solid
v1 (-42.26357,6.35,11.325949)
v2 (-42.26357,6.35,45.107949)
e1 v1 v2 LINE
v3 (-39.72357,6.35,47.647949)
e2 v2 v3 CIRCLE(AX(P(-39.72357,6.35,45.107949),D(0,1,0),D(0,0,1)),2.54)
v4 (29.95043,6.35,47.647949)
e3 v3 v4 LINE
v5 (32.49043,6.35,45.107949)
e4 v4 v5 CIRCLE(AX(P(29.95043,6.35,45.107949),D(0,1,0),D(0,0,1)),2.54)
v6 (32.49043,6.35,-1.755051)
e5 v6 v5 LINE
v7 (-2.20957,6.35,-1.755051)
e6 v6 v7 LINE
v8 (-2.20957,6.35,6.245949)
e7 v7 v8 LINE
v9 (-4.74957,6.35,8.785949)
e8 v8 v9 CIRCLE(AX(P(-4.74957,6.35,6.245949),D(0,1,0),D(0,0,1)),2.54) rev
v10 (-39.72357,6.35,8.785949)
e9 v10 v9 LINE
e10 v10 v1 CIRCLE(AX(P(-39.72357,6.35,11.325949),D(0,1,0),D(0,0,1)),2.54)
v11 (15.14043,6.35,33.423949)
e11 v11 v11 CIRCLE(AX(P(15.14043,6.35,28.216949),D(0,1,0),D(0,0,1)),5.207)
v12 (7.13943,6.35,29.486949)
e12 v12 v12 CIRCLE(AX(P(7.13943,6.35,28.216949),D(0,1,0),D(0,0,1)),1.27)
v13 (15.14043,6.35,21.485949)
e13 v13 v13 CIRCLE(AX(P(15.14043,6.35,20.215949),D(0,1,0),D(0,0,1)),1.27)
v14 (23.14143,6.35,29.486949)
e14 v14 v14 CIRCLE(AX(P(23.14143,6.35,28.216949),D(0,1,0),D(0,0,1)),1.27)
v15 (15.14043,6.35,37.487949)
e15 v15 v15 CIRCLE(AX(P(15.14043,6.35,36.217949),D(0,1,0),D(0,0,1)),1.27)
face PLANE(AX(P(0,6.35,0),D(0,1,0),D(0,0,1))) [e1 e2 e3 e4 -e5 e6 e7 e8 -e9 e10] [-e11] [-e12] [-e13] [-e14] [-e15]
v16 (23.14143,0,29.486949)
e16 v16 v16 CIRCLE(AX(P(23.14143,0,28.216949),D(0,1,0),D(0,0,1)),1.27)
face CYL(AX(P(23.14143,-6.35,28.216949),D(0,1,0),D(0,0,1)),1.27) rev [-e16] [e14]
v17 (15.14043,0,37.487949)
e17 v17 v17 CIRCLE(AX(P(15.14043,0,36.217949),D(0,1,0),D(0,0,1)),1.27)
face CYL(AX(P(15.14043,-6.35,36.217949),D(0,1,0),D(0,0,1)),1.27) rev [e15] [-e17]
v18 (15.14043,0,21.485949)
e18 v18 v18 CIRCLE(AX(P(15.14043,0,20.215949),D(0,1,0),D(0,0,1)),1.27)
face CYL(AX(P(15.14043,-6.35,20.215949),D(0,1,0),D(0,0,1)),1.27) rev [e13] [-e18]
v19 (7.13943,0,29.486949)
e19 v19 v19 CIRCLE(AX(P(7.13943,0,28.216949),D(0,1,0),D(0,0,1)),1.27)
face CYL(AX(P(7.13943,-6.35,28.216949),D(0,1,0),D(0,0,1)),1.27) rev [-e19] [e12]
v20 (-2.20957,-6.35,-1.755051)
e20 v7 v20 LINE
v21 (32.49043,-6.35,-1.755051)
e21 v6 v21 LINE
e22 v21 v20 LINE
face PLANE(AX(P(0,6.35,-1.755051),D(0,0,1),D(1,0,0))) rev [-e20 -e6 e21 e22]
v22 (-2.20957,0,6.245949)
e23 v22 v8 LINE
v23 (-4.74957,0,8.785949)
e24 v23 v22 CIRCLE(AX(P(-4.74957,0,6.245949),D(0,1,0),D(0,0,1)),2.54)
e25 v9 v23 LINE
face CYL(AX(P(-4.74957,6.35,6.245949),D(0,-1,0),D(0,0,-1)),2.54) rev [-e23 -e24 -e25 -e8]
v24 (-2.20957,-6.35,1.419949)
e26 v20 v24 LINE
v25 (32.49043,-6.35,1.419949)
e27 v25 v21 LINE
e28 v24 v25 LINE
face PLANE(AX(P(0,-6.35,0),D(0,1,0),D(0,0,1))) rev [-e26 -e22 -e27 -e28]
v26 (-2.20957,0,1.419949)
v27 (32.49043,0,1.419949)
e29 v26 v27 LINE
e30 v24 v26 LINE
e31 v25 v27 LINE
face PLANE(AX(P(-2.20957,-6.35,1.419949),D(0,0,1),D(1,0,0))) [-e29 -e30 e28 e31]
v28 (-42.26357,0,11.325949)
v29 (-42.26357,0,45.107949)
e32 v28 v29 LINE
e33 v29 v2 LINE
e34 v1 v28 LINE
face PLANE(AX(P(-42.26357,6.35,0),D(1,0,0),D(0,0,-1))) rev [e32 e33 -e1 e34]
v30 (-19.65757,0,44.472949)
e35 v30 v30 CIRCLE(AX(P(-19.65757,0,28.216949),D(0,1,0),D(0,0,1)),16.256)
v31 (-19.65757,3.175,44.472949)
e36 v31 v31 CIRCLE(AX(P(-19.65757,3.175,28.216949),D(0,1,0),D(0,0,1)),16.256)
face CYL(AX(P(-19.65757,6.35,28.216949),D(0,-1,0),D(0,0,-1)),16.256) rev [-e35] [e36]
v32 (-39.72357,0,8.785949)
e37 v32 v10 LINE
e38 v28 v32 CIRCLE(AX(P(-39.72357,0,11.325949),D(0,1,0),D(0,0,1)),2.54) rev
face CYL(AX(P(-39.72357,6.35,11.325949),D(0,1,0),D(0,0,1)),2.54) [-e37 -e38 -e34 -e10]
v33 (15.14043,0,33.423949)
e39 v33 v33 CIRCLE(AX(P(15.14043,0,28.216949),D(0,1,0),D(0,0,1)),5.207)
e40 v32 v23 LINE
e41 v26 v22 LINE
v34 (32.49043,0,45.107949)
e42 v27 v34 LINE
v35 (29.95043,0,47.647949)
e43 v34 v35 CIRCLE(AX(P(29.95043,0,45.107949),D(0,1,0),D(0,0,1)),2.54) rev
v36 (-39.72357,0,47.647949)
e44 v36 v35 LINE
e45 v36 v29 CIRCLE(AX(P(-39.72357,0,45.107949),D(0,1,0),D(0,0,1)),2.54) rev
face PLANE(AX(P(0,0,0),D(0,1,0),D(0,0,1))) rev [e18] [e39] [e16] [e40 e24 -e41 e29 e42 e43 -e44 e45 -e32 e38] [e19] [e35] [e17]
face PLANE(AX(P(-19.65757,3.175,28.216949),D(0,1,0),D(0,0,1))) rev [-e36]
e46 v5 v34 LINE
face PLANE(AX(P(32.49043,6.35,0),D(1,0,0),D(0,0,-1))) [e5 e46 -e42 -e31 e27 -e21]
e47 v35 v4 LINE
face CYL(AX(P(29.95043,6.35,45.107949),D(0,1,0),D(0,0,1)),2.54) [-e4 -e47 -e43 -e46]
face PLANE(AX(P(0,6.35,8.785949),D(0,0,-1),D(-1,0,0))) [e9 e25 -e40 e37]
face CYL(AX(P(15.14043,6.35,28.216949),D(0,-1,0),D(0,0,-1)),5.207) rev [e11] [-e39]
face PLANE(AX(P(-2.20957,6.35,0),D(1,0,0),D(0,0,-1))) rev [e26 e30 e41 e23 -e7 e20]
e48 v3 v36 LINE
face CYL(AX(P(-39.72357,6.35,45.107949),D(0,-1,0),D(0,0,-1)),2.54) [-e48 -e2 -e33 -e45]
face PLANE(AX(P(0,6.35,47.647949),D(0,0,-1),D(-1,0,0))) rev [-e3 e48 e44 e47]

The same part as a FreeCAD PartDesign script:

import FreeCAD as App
import Part
import Sketcher
Q = App.Units.Quantity


def edges_at(feature, points):
    """Names of the edges that pass closest to the given points."""
    edges = feature.Shape.Edges
    near = lambda p: min(range(len(edges)), key=lambda i: edges[i].distToShape(Part.Vertex(*p))[0])
    return sorted({f"Edge{near(p) + 1}" for p in points})


def add_polygon(sketch, points):
    """Adds a closed chain of lines whose ends are joined by coincident constraints."""
    first, n = sketch.GeometryCount, len(points)
    for a, b in zip(points, points[1:] + points[:1]):
        sketch.addGeometry(Part.LineSegment(App.Vector(*a, 0), App.Vector(*b, 0)), False)
    for i in range(n):
        sketch.addConstraint(Sketcher.Constraint("Coincident", first + i, 2, first + (i + 1) % n, 1))

doc = App.newDocument("Part")
body = doc.addObject("PartDesign::Body", "Body")

# Sketch on XZ plane
sketch1 = doc.addObject("Sketcher::SketchObject", "Sketch")
body.addObject(sketch1)
sketch1.AttachmentSupport = (doc.XZ_Plane, [""])
sketch1.MapMode = "FlatFace"
add_polygon(sketch1, [(-42, 9), (-42, 48), (32, 48), (32, -2), (-2, -2), (-2, 9)])  # lines 0-5
sketch1.addGeometry(Part.Circle(App.Vector(-20, 28, 0), App.Vector(0, 0, 1), 16), False)  # 6
sketch1.addGeometry(Part.Circle(App.Vector(15, 28, 0), App.Vector(0, 0, 1), 5), False)  # 7
sketch1.addConstraint(Sketcher.Constraint("Vertical", 0))
sketch1.addConstraint(Sketcher.Constraint("Horizontal", 1))
sketch1.addConstraint(Sketcher.Constraint("Vertical", 2))
sketch1.addConstraint(Sketcher.Constraint("Horizontal", 3))
sketch1.addConstraint(Sketcher.Constraint("Vertical", 4))
sketch1.addConstraint(Sketcher.Constraint("Horizontal", 5))
sketch1.addConstraint(Sketcher.Constraint("Horizontal", 6, 3, 7, 3))
sketch1.addConstraint(Sketcher.Constraint("Diameter", 6, Q("1.28 in")))
sketch1.addConstraint(Sketcher.Constraint("Diameter", 7, Q("0.41 in")))
sketch1.addConstraint(Sketcher.Constraint("DistanceY", 0, 1, 0, 2, Q("1.53 in")))
sketch1.addConstraint(Sketcher.Constraint("DistanceY", 2, 2, 2, 1, Q("1.945 in")))
sketch1.addConstraint(Sketcher.Constraint("DistanceX", 6, 3, 7, 3, Q("1.37 in")))
sketch1.addConstraint(Sketcher.Constraint("DistanceX", 0, 2, 6, 3, Q("0.89 in")))
sketch1.addConstraint(Sketcher.Constraint("DistanceY", 2, 2, 7, 3, Q("1.18 in")))
sketch1.addConstraint(Sketcher.Constraint("DistanceX", 1, 1, 1, 2, Q("74.754 mm")))
sketch1.addConstraint(Sketcher.Constraint("DistanceX", 3, 2, 3, 1, Q("34.7 mm")))
sketch1.addConstraint(Sketcher.Constraint("DistanceX", 6, 3, -1, 1, Q("19.65757 mm")))
sketch1.addConstraint(Sketcher.Constraint("DistanceY", -1, 1, 6, 3, Q("28.216949 mm")))
pad1 = doc.addObject("PartDesign::Pad", "Pad")
body.addObject(pad1)
pad1.Profile = sketch1
pad1.Length = Q("0.25 in")
pad1.Reversed = True

# Sketch on XZ plane
sketch2 = doc.addObject("Sketcher::SketchObject", "Sketch001")
body.addObject(sketch2)
sketch2.AttachmentSupport = (doc.XZ_Plane, [""])
sketch2.MapMode = "FlatFace"
sketch2.AttachmentOffset = App.Placement(App.Vector(0, 0, -0.125 * 25.4), App.Rotation())
sketch2.addGeometry(Part.Circle(App.Vector(-20, 28, 0), App.Vector(0, 0, 1), 16), False)
sketch2.addConstraint(Sketcher.Constraint("Diameter", 0, Q("1.28 in")))
sketch2.addConstraint(Sketcher.Constraint("DistanceX", 0, 3, -1, 1, Q("19.65757 mm")))
sketch2.addConstraint(Sketcher.Constraint("DistanceY", -1, 1, 0, 3, Q("28.216949 mm")))
pad2 = doc.addObject("PartDesign::Pad", "Pad001")
body.addObject(pad2)
pad2.Profile = sketch2
pad2.Length = Q("0.125 in")
pad2.Reversed = True

# Sketch on XZ plane
sketch3 = doc.addObject("Sketcher::SketchObject", "Sketch002")
body.addObject(sketch3)
sketch3.AttachmentSupport = (doc.XZ_Plane, [""])
sketch3.MapMode = "FlatFace"
sketch3.AttachmentOffset = App.Placement(App.Vector(0, 0, -0.25 * 25.4), App.Rotation())
add_polygon(sketch3, [(-2.2, -1.8), (-2.2, 1.4), (32.5, 1.4), (32.5, -1.8)])  # lines 0-3
sketch3.addConstraint(Sketcher.Constraint("Vertical", 0))
sketch3.addConstraint(Sketcher.Constraint("Horizontal", 1))
sketch3.addConstraint(Sketcher.Constraint("Vertical", 2))
sketch3.addConstraint(Sketcher.Constraint("Horizontal", 3))
sketch3.addConstraint(Sketcher.Constraint("DistanceY", 0, 1, 0, 2, Q("0.125 in")))
sketch3.addConstraint(Sketcher.Constraint("DistanceX", 1, 1, 1, 2, Q("34.7 mm")))
sketch3.addConstraint(Sketcher.Constraint("DistanceX", 0, 2, -1, 1, Q("2.20957 mm")))
sketch3.addConstraint(Sketcher.Constraint("DistanceY", -1, 1, 0, 2, Q("1.419949 mm")))
pad3 = doc.addObject("PartDesign::Pad", "Pad002")
body.addObject(pad3)
pad3.Profile = sketch3
pad3.Length = Q("0.5 in")
doc.recompute()

fillet = doc.addObject("PartDesign::Fillet", "Fillet")
body.addObject(fillet)
fillet.Base = (pad3, edges_at(pad3, [
    (32.49, 3.175, 47.648),
    (-42.264, 3.175, 47.648),
    (-42.264, 3.175, 8.786),
    (-2.21, 3.175, 8.786),
]))
fillet.Radius = Q("0.1 in")

# Sketch on XZ plane
sketch4 = doc.addObject("Sketcher::SketchObject", "Sketch003")
body.addObject(sketch4)
sketch4.AttachmentSupport = (doc.XZ_Plane, [""])
sketch4.MapMode = "FlatFace"
sketch4.AttachmentOffset = App.Placement(App.Vector(0, 0, -0.25 * 25.4), App.Rotation())
sketch4.addGeometry(Part.Circle(App.Vector(15.1, 20.2, 0), App.Vector(0, 0, 1), 1.3), False)
sketch4.addGeometry(Part.Circle(App.Vector(23.1, 28.2, 0), App.Vector(0, 0, 1), 1.3), False)
sketch4.addGeometry(Part.Circle(App.Vector(15.1, 36.2, 0), App.Vector(0, 0, 1), 1.3), False)
sketch4.addGeometry(Part.Circle(App.Vector(7.1, 28.2, 0), App.Vector(0, 0, 1), 1.3), False)
sketch4.addConstraint(Sketcher.Constraint("Equal", 0, 1))
sketch4.addConstraint(Sketcher.Constraint("Equal", 1, 2))
sketch4.addConstraint(Sketcher.Constraint("Equal", 2, 3))
sketch4.addConstraint(Sketcher.Constraint("Horizontal", 1, 3, 3, 3))
sketch4.addConstraint(Sketcher.Constraint("Vertical", 0, 3, 2, 3))
sketch4.addConstraint(Sketcher.Constraint("Diameter", 0, Q("0.1 in")))
sketch4.addConstraint(Sketcher.Constraint("DistanceY", 0, 3, 2, 3, Q("0.63 in")))
sketch4.addConstraint(Sketcher.Constraint("DistanceX", 3, 3, 1, 3, Q("0.63 in")))
sketch4.addConstraint(Sketcher.Constraint("DistanceX", 0, 3, 1, 3, Q("0.315 in")))
sketch4.addConstraint(Sketcher.Constraint("DistanceY", 0, 3, 1, 3, Q("0.315 in")))
sketch4.addConstraint(Sketcher.Constraint("DistanceX", -1, 1, 0, 3, Q("15.14043 mm")))
sketch4.addConstraint(Sketcher.Constraint("DistanceY", -1, 1, 0, 3, Q("20.215949 mm")))
pocket1 = doc.addObject("PartDesign::Pocket", "Pocket")
body.addObject(pocket1)
pocket1.Profile = sketch4
pocket1.Type = "ThroughAll"
pocket1.Reversed = True

doc.recompute()
